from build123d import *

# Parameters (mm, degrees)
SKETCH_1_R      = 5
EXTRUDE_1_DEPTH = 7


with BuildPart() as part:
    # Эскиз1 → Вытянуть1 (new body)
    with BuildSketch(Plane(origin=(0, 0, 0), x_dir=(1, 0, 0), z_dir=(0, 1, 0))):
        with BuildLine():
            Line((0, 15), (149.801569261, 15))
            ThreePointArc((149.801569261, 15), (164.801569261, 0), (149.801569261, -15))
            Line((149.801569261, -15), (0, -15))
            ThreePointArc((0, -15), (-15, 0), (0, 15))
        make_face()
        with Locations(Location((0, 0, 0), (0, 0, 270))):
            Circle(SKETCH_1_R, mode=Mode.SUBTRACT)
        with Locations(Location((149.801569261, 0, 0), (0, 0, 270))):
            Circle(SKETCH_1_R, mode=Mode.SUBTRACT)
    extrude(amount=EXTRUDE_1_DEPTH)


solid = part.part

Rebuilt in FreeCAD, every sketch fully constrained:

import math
import FreeCAD as App
import Part
import Sketcher
Q = App.Units.Quantity

doc = App.newDocument("Part")
body = doc.addObject("PartDesign::Body", "Body")

sketch1 = body.newObject("Sketcher::SketchObject", "Sketch")
sketch1.AttachmentSupport = (doc.getObject("XZ_Plane"), [""])
sketch1.MapMode = "FlatFace"
sketch1.addGeometry([
    Part.LineSegment(App.Vector(150, -15, 0), App.Vector(0, -15, 0)),
    Part.ArcOfCircle(Part.Circle(App.Vector(0, 0, 0), App.Vector(0, 0, 1), 15), math.radians(90), math.radians(270)),
    Part.LineSegment(App.Vector(0, 15, 0), App.Vector(150, 15, 0)),
    Part.ArcOfCircle(Part.Circle(App.Vector(150, 0, 0), App.Vector(0, 0, 1), 15), math.radians(-90), math.radians(90)),
    Part.Circle(App.Vector(150, 0, 0), App.Vector(0, 0, 1), 5),
    Part.Circle(App.Vector(0, 0, 0), App.Vector(0, 0, 1), 5),
], False)
sketch1.addConstraint([
    Sketcher.Constraint("Tangent", 0, 2, 1, 2),
    Sketcher.Constraint("Tangent", 1, 1, 2, 1),
    Sketcher.Constraint("Tangent", 2, 2, 3, 2),
    Sketcher.Constraint("Tangent", 3, 1, 0, 1),
    Sketcher.Constraint("Horizontal", 0),
    Sketcher.Constraint("Horizontal", 2),
    Sketcher.Constraint("Coincident", 1, 3, -1, 1),
    Sketcher.Constraint("Coincident", 5, 3, -1, 1),
    Sketcher.Constraint("Coincident", 4, 3, 3, 3),
    Sketcher.Constraint("Equal", 4, 5),
    Sketcher.Constraint("Diameter", 4, Q("10 mm")),
    Sketcher.Constraint("Radius", 1, Q("15 mm")),
    Sketcher.Constraint("DistanceX", 0, 2, 0, 1, Q("149.801569 mm")),
])
pad1 = body.newObject("PartDesign::Pad", "Pad")
pad1.Profile = sketch1
pad1.Length = 7
pad1.Reversed = True

doc.recompute()
